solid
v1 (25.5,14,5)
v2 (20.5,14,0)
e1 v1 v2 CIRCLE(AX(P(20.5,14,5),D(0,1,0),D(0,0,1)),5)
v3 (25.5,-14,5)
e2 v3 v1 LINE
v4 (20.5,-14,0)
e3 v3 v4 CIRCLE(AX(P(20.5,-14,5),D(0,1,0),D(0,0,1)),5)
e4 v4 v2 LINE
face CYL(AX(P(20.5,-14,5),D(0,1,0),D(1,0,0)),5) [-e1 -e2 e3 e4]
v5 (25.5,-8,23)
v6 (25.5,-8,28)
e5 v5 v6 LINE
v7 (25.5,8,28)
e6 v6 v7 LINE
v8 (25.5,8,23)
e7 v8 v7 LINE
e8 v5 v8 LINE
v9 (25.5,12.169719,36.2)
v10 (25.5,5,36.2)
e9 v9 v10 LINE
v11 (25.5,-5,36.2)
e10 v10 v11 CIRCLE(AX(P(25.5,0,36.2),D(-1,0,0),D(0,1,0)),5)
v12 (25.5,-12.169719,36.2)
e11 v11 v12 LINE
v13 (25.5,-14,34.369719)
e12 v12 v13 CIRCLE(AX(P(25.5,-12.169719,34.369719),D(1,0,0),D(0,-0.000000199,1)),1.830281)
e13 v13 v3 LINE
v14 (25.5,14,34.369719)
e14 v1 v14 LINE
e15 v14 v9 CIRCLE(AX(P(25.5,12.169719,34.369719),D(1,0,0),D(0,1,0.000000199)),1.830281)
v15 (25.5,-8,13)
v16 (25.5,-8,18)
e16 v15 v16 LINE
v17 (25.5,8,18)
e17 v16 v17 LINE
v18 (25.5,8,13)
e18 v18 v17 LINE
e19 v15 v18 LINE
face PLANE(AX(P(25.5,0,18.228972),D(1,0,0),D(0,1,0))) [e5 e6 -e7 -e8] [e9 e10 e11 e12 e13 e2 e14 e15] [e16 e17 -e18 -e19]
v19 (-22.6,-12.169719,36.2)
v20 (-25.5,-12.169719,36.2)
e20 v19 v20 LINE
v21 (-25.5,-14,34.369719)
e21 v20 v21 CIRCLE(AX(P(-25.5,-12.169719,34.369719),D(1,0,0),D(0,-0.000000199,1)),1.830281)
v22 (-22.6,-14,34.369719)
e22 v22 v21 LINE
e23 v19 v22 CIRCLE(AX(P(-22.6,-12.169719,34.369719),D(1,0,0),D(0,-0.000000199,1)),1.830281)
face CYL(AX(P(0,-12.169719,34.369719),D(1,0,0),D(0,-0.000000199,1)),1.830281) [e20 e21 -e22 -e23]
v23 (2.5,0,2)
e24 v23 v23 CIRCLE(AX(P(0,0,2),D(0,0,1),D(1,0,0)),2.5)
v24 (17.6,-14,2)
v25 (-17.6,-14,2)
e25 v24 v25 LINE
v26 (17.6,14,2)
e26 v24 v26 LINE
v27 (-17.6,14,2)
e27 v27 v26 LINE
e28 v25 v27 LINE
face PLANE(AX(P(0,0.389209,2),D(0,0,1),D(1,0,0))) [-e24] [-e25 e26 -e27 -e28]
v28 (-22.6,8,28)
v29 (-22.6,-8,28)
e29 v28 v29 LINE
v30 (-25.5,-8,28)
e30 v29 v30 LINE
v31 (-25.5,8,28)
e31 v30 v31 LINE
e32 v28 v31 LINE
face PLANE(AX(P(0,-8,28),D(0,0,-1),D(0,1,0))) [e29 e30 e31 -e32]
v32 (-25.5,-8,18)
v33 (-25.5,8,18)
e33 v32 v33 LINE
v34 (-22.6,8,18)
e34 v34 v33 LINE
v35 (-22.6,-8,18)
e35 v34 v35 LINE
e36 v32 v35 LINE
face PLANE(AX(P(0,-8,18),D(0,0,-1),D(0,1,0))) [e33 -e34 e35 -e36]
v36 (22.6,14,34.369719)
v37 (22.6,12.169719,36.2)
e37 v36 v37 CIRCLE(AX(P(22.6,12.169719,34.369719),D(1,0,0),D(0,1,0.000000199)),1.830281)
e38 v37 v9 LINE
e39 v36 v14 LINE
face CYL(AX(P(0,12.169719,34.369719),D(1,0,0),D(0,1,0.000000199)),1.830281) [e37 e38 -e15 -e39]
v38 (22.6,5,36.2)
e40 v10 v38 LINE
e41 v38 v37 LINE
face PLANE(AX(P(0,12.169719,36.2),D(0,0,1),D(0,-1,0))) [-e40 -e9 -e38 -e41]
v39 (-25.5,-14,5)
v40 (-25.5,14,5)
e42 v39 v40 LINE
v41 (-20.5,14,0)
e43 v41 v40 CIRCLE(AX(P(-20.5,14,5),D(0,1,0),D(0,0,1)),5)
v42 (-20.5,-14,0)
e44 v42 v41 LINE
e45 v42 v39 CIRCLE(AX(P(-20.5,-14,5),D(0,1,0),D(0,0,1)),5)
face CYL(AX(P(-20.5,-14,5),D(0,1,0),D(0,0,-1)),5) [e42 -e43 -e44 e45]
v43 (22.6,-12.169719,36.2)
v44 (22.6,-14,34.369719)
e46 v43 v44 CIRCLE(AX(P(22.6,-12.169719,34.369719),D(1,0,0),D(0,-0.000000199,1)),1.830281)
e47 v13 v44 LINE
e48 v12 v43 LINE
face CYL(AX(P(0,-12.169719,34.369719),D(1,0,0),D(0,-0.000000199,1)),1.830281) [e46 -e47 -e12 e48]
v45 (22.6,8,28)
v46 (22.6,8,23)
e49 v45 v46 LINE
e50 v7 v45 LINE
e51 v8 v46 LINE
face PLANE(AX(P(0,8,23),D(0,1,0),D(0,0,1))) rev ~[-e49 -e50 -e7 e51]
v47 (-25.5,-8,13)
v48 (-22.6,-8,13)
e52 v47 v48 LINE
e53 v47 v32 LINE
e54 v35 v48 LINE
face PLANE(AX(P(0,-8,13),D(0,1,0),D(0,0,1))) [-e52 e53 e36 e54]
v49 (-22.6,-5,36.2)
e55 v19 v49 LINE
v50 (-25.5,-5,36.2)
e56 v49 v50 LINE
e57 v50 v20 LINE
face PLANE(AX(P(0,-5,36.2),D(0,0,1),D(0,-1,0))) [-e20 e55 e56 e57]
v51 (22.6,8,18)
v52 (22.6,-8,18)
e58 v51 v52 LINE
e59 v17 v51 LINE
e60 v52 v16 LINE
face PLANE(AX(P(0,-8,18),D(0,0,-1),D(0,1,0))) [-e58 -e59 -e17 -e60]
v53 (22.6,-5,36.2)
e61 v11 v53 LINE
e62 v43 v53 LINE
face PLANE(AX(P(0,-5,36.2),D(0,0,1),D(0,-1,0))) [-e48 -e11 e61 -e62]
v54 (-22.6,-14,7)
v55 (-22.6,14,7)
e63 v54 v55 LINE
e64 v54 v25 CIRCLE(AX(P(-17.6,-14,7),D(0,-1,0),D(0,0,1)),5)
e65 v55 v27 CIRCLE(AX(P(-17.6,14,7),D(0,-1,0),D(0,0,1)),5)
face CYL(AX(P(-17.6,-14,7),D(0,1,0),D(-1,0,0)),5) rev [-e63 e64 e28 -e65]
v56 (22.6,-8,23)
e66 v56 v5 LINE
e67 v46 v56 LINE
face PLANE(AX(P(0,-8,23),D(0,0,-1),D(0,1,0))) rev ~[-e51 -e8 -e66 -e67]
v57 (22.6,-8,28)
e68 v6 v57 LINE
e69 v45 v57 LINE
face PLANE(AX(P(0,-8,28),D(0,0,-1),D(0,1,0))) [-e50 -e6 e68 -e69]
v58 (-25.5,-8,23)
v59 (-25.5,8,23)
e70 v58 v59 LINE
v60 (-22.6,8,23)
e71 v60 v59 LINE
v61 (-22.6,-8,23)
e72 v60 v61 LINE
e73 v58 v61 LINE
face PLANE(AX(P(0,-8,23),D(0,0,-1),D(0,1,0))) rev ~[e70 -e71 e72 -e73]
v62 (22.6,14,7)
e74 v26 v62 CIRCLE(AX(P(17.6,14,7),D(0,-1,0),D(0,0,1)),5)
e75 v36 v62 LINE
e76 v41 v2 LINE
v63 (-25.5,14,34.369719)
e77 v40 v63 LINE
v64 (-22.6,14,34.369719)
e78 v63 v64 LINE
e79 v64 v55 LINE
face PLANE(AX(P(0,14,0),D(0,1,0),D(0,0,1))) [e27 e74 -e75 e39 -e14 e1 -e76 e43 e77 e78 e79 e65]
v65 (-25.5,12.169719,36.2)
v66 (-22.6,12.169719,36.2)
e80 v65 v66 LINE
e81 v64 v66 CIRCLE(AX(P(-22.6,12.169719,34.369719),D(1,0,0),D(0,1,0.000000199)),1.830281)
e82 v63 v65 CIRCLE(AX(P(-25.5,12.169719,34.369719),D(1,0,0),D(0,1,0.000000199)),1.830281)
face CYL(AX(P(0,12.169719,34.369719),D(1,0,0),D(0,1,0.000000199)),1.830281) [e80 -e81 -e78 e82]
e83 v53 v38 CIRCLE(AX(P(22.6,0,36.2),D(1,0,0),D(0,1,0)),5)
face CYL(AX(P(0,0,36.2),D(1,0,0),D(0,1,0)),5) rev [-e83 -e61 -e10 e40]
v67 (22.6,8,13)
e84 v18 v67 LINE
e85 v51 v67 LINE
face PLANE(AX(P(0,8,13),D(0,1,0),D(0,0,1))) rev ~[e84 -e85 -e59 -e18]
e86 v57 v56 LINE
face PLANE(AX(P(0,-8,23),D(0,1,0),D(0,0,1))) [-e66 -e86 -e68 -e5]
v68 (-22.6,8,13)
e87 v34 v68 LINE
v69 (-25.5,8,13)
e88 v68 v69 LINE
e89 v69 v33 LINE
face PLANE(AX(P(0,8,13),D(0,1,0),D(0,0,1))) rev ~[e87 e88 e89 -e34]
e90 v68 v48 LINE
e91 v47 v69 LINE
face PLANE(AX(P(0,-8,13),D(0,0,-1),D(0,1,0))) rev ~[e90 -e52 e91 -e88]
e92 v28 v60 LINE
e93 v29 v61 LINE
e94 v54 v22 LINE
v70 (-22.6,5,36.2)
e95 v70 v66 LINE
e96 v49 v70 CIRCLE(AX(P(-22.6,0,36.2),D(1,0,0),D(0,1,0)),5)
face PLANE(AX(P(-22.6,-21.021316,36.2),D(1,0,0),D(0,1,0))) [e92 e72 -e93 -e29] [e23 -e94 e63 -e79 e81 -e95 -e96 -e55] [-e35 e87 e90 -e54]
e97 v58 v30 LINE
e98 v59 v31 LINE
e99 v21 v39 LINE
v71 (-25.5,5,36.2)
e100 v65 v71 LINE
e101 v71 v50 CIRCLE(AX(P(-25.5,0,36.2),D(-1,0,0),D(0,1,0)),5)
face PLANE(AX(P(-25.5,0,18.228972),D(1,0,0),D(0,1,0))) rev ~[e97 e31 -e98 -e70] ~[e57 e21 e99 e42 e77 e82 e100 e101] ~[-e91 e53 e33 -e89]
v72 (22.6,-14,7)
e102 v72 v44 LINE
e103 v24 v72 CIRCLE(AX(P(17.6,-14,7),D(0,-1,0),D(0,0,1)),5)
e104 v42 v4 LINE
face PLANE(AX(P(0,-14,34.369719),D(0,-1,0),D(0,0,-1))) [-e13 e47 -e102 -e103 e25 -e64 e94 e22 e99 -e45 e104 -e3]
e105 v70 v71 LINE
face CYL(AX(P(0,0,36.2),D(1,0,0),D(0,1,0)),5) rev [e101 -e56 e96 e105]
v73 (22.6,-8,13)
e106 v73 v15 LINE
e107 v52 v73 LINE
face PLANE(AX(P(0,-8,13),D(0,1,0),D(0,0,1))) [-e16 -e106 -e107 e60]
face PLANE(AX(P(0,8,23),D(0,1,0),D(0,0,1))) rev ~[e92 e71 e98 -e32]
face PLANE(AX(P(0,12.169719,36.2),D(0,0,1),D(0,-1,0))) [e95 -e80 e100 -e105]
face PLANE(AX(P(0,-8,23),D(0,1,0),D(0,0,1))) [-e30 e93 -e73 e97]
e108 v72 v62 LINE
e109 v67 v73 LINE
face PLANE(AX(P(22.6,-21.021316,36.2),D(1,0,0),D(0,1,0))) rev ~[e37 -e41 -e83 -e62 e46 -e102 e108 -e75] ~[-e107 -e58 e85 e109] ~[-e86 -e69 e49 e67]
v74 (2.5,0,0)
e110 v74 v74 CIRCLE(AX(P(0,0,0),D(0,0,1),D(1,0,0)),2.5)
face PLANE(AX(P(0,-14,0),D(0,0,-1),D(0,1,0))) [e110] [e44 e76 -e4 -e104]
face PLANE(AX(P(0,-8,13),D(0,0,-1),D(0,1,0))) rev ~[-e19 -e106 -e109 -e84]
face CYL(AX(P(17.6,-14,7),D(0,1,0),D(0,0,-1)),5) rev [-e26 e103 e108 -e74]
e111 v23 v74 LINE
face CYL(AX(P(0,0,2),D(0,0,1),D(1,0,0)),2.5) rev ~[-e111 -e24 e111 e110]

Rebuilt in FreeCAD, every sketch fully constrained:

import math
import FreeCAD as App
import Part
import Sketcher
Q = App.Units.Quantity


def edges_at(feature, points):
    """Names of the edges that pass closest to the given points."""
    edges = feature.Shape.Edges
    near = lambda p: min(range(len(edges)), key=lambda i: edges[i].distToShape(Part.Vertex(*p))[0])
    return sorted({f"Edge{near(p) + 1}" for p in points})

doc = App.newDocument("Part")
body = doc.addObject("PartDesign::Body", "Body")

# Sketch on YZ plane
sketch1 = body.newObject("Sketcher::SketchObject", "Sketch")
sketch1.AttachmentSupport = (doc.getObject("YZ_Plane"), [""])
sketch1.MapMode = "FlatFace"
sketch1.addGeometry([
    Part.LineSegment(App.Vector(-14, 34.4, 0), App.Vector(-14, 0, 0)),  # 0
    Part.LineSegment(App.Vector(-14, 0, 0), App.Vector(14, 0, 0)),  # 1
    Part.LineSegment(App.Vector(14, 0, 0), App.Vector(14, 34.4, 0)),  # 2
    Part.ArcOfCircle(Part.Circle(App.Vector(12.2, 34.4, 0), App.Vector(0, 0, 1), 1.8), math.radians(0), math.radians(90)),  # 3
    Part.LineSegment(App.Vector(12.2, 36.2, 0), App.Vector(5, 36.2, 0)),  # 4
    Part.ArcOfCircle(Part.Circle(App.Vector(0, 36.2, 0), App.Vector(0, 0, 1), 5), math.radians(180), math.radians(360)),  # 5
    Part.LineSegment(App.Vector(-5, 36.2, 0), App.Vector(-12.2, 36.2, 0)),  # 6
    Part.ArcOfCircle(Part.Circle(App.Vector(-12.2, 34.4, 0), App.Vector(0, 0, 1), 1.8), math.radians(90), math.radians(180)),  # 7
    Part.LineSegment(App.Vector(8, 13, 0), App.Vector(-8, 13, 0)),  # 8
    Part.LineSegment(App.Vector(-8, 13, 0), App.Vector(-8, 18, 0)),  # 9
    Part.LineSegment(App.Vector(-8, 18, 0), App.Vector(8, 18, 0)),  # 10
    Part.LineSegment(App.Vector(8, 18, 0), App.Vector(8, 13, 0)),  # 11
    Part.LineSegment(App.Vector(8, 23, 0), App.Vector(-8, 23, 0)),  # 12
    Part.LineSegment(App.Vector(-8, 23, 0), App.Vector(-8, 28, 0)),  # 13
    Part.LineSegment(App.Vector(-8, 28, 0), App.Vector(8, 28, 0)),  # 14
    Part.LineSegment(App.Vector(8, 28, 0), App.Vector(8, 23, 0)),  # 15
], False)
sketch1.addConstraint([
    Sketcher.Constraint("Coincident", 0, 2, 1, 1),
    Sketcher.Constraint("Coincident", 1, 2, 2, 1),
    Sketcher.Constraint("Tangent", 2, 2, 3, 1),
    Sketcher.Constraint("Tangent", 3, 2, 4, 1),
    Sketcher.Constraint("Coincident", 4, 2, 5, 2),
    Sketcher.Constraint("Coincident", 5, 1, 6, 1),
    Sketcher.Constraint("Tangent", 6, 2, 7, 1),
    Sketcher.Constraint("Tangent", 7, 2, 0, 1),
    Sketcher.Constraint("Coincident", 8, 2, 9, 1),
    Sketcher.Constraint("Coincident", 9, 2, 10, 1),
    Sketcher.Constraint("Coincident", 10, 2, 11, 1),
    Sketcher.Constraint("Coincident", 11, 2, 8, 1),
    Sketcher.Constraint("Coincident", 12, 2, 13, 1),
    Sketcher.Constraint("Coincident", 13, 2, 14, 1),
    Sketcher.Constraint("Coincident", 14, 2, 15, 1),
    Sketcher.Constraint("Coincident", 15, 2, 12, 1),
    Sketcher.Constraint("Vertical", 0),
    Sketcher.Constraint("Horizontal", 1),
    Sketcher.Constraint("Vertical", 2),
    Sketcher.Constraint("Horizontal", 4),
    Sketcher.Constraint("Horizontal", 6),
    Sketcher.Constraint("Horizontal", 8),
    Sketcher.Constraint("Vertical", 9),
    Sketcher.Constraint("Horizontal", 10),
    Sketcher.Constraint("Vertical", 11),
    Sketcher.Constraint("Horizontal", 12),
    Sketcher.Constraint("Vertical", 13),
    Sketcher.Constraint("Horizontal", 14),
    Sketcher.Constraint("Vertical", 15),
    Sketcher.Constraint("Equal", 3, 7),
    Sketcher.Constraint("Symmetric", 0, 2, 1, 2, -1, 1),
    Sketcher.Constraint("Symmetric", 4, 2, 5, 1, -2),
    Sketcher.Constraint("Horizontal", 5, 3, 3, 2),
    Sketcher.Constraint("Vertical", 9, 2, 12, 2),
    Sketcher.Constraint("Vertical", 11, 2, 14, 2),
    Sketcher.Constraint("Equal", 11, 13),
    Sketcher.Constraint("Radius", 5, Q("5 mm")),
    Sketcher.Constraint("DistanceX", 1, 1, 1, 2, Q("28 mm")),
    Sketcher.Constraint("DistanceX", 8, 2, 8, 1, Q("16 mm")),
    Sketcher.Constraint("DistanceY", 9, 1, 9, 2, Q("5 mm")),
    Sketcher.Constraint("DistanceX", 8, 2, -1, 1, Q("8 mm")),
    Sketcher.Constraint("DistanceY", -1, 1, 8, 2, Q("13 mm")),
    Sketcher.Constraint("DistanceY", -1, 1, 12, 2, Q("23 mm")),
    Sketcher.Constraint("DistanceY", -1, 1, 5, 3, Q("36.2 mm")),
    Sketcher.Constraint("Radius", 3, Q("1.830281 mm")),
])
pad1 = body.newObject("PartDesign::Pad", "Pad")
pad1.Profile = sketch1
pad1.Length = 51
pad1.Midplane = True

# Sketch on XY plane
sketch2 = body.newObject("Sketcher::SketchObject", "Sketch001")
sketch2.AttachmentSupport = (doc.getObject("XY_Plane"), [""])
sketch2.MapMode = "FlatFace"
sketch2.AttachmentOffset = App.Placement(App.Vector(0, 0, 36.2), App.Rotation())
sketch2.addGeometry([
    Part.LineSegment(App.Vector(-23, 22, 0), App.Vector(-23, -21, 0)),
    Part.LineSegment(App.Vector(-23, -21, 0), App.Vector(23, -21, 0)),
    Part.LineSegment(App.Vector(23, -21, 0), App.Vector(23, 22, 0)),
    Part.LineSegment(App.Vector(23, 22, 0), App.Vector(-23, 22, 0)),
], False)
sketch2.addConstraint([
    Sketcher.Constraint("Coincident", 0, 2, 1, 1),
    Sketcher.Constraint("Coincident", 1, 2, 2, 1),
    Sketcher.Constraint("Coincident", 2, 2, 3, 1),
    Sketcher.Constraint("Coincident", 3, 2, 0, 1),
    Sketcher.Constraint("Vertical", 0),
    Sketcher.Constraint("Horizontal", 1),
    Sketcher.Constraint("Vertical", 2),
    Sketcher.Constraint("Horizontal", 3),
    Sketcher.Constraint("DistanceX", 1, 1, 1, 2, Q("45.2 mm")),
    Sketcher.Constraint("DistanceX", 0, 2, -1, 1, Q("22.6 mm")),
    Sketcher.Constraint("DistanceY", 0, 2, 0, 1, Q("42.82105 mm")),
    Sketcher.Constraint("DistanceY", 0, 2, -1, 1, Q("21.021316 mm")),
])
pocket1 = body.newObject("PartDesign::Pocket", "Pocket")
pocket1.Profile = sketch2
pocket1.Length = 34.2

# Sketch on XY plane
sketch3 = body.newObject("Sketcher::SketchObject", "Sketch002")
sketch3.AttachmentSupport = (doc.getObject("XY_Plane"), [""])
sketch3.MapMode = "FlatFace"
sketch3.AttachmentOffset = App.Placement(App.Vector(0, 0, 2), App.Rotation())
sketch3.addGeometry(Part.Circle(App.Vector(0, 0, 0), App.Vector(0, 0, 1), 2.5), False)
sketch3.addConstraint([
    Sketcher.Constraint("Coincident", 0, 3, -1, 1),
    Sketcher.Constraint("Diameter", 0, Q("5 mm")),
])
pocket2 = body.newObject("PartDesign::Pocket", "Pocket001")
pocket2.Profile = sketch3
pocket2.Type = "ThroughAll"
doc.recompute()

fillet = body.newObject("PartDesign::Fillet", "Fillet")
fillet.Base = (pocket2, edges_at(pocket2, [
    (25.5, 0, 0),
    (22.6, 0, 2),
    (-22.6, 0, 2),
    (-25.5, 0, 0),
]))
fillet.Radius = 5

doc.recompute()
